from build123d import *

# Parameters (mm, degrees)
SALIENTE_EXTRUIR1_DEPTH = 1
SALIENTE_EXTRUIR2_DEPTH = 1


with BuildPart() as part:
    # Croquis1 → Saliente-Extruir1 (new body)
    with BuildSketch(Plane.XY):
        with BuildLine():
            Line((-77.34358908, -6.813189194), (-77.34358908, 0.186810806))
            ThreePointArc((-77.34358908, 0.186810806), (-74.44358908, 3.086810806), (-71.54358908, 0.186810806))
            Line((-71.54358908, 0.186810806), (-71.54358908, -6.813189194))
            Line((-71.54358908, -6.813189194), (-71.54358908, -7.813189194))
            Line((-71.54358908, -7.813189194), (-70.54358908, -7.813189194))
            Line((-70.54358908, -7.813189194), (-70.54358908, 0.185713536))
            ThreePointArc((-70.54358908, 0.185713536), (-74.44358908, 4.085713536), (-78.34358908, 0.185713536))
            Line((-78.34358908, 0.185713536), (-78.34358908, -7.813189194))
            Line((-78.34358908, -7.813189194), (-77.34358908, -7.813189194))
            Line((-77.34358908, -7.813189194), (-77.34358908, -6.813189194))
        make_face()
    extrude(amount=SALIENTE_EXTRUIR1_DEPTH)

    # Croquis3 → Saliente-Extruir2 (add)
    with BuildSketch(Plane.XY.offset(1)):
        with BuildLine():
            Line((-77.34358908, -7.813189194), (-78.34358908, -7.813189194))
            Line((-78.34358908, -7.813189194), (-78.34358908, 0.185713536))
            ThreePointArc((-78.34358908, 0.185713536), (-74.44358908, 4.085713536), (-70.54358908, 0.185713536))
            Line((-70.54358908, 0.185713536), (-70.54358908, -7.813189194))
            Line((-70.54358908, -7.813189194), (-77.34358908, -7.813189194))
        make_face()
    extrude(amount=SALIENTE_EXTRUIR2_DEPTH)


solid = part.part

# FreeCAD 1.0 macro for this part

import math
import FreeCAD as App
import Part
import Sketcher

V = App.Vector

doc = App.newDocument("Part")
params = doc.addObject("Spreadsheet::Sheet", "Params")
for row, (alias, value) in enumerate([
    ("sketch1_radius", "2.9 mm"),
    ("sketch1_radius2", "3.9 mm"),
    ("sketch1_height", "8 mm"),
    ("pad1_length", "1 mm"),
    ("sketch2_radius", "3.9 mm"),
    ("pad2_length", "1 mm"),
], start=1):
    params.set(f"A{row}", alias)
    params.set(f"B{row}", "=" + value)
    params.setAlias(f"B{row}", alias)

body = doc.addObject("PartDesign::Body", "Body")

# Sketch on XY plane
sketch1 = body.newObject("Sketcher::SketchObject", "Sketch")
sketch1.AttachmentSupport = (doc.getObject("XY_Plane"), [""])
sketch1.MapMode = "FlatFace"
sketch1.addGeometry([
    Part.ArcOfCircle(Part.Circle(V(-74.4, 0.2, 0), V(0, 0, 1), 2.9), math.radians(0), math.radians(180)),  # 0
    Part.LineSegment(V(-71.5, 0.2, 0), V(-71.5, -7.8, 0)),  # 1
    Part.LineSegment(V(-71.5, -7.8, 0), V(-70.5, -7.8, 0)),  # 2
    Part.LineSegment(V(-70.5, -7.8, 0), V(-70.5, 0.2, 0)),  # 3
    Part.ArcOfCircle(Part.Circle(V(-74.4, 0.2, 0), V(0, 0, 1), 3.9), math.radians(0), math.radians(180)),  # 4
    Part.LineSegment(V(-78.3, 0.2, 0), V(-78.3, -7.8, 0)),  # 5
    Part.LineSegment(V(-78.3, -7.8, 0), V(-77.3, -7.8, 0)),  # 6
    Part.LineSegment(V(-77.3, -7.8, 0), V(-77.3, 0.2, 0)),  # 7
], False)
sketch1.addConstraint([
    Sketcher.Constraint("Tangent", 0, 1, 1, 1),
    Sketcher.Constraint("Coincident", 1, 2, 2, 1),
    Sketcher.Constraint("Coincident", 2, 2, 3, 1),
    Sketcher.Constraint("Tangent", 3, 2, 4, 1),
    Sketcher.Constraint("Tangent", 4, 2, 5, 1),
    Sketcher.Constraint("Coincident", 5, 2, 6, 1),
    Sketcher.Constraint("Coincident", 6, 2, 7, 1),
    Sketcher.Constraint("Tangent", 7, 2, 0, 2),
    Sketcher.Constraint("Vertical", 1),
    Sketcher.Constraint("Horizontal", 2),
    Sketcher.Constraint("Vertical", 3),
    Sketcher.Constraint("Vertical", 5),
    Sketcher.Constraint("Horizontal", 6),
    Sketcher.Constraint("Vertical", 7),
    Sketcher.Constraint("Horizontal", 2, 2, 5, 2),
    Sketcher.Constraint("Vertical", 0, 3, 4, 3),
    Sketcher.Constraint("Radius", 0, 2.9),
    Sketcher.Constraint("Radius", 4, 3.9),
    Sketcher.Constraint("DistanceY", 1, 2, 1, 1, 8.0),
    Sketcher.Constraint("DistanceY", 3, 1, 3, 2, 7.998903),
    Sketcher.Constraint("DistanceX", 0, 3, -1, 1, 74.443589),
    Sketcher.Constraint("DistanceY", -1, 1, 0, 3, 0.186811),
])
sketch1.setExpression("Constraints[16]", "Params.sketch1_radius")
sketch1.setExpression("Constraints[17]", "Params.sketch1_radius2")
sketch1.setExpression("Constraints[18]", "Params.sketch1_height")
pad1 = body.newObject("PartDesign::Pad", "Pad")
pad1.Profile = sketch1
pad1.setExpression("Length", "Params.pad1_length")

# Sketch on XY plane
sketch2 = body.newObject("Sketcher::SketchObject", "Sketch001")
sketch2.AttachmentSupport = (doc.getObject("XY_Plane"), [""])
sketch2.MapMode = "FlatFace"
sketch2.AttachmentOffset = App.Placement(V(0, 0, 1), App.Rotation())
sketch2.addGeometry([
    Part.LineSegment(V(-78.3, 0.2, 0), V(-78.3, -7.8, 0)),
    Part.LineSegment(V(-78.3, -7.8, 0), V(-70.5, -7.8, 0)),
    Part.LineSegment(V(-70.5, -7.8, 0), V(-70.5, 0.2, 0)),
    Part.ArcOfCircle(Part.Circle(V(-74.4, 0.2, 0), V(0, 0, 1), 3.9), math.radians(0), math.radians(180)),
], False)
sketch2.addConstraint([
    Sketcher.Constraint("Coincident", 0, 2, 1, 1),
    Sketcher.Constraint("Coincident", 1, 2, 2, 1),
    Sketcher.Constraint("Tangent", 2, 2, 3, 1),
    Sketcher.Constraint("Tangent", 3, 2, 0, 1),
    Sketcher.Constraint("Vertical", 0),
    Sketcher.Constraint("Horizontal", 1),
    Sketcher.Constraint("Vertical", 2),
    Sketcher.Constraint("Radius", 3, 3.9),
    Sketcher.Constraint("DistanceY", 0, 2, 0, 1, 7.998903),
    Sketcher.Constraint("DistanceX", 3, 3, -1, 1, 74.443589),
    Sketcher.Constraint("DistanceY", 0, 2, -1, 1, 7.813189),
])
sketch2.setExpression("Constraints[7]", "Params.sketch2_radius")
pad2 = body.newObject("PartDesign::Pad", "Pad001")
pad2.Profile = sketch2
pad2.setExpression("Length", "Params.pad2_length")

doc.recompute()
